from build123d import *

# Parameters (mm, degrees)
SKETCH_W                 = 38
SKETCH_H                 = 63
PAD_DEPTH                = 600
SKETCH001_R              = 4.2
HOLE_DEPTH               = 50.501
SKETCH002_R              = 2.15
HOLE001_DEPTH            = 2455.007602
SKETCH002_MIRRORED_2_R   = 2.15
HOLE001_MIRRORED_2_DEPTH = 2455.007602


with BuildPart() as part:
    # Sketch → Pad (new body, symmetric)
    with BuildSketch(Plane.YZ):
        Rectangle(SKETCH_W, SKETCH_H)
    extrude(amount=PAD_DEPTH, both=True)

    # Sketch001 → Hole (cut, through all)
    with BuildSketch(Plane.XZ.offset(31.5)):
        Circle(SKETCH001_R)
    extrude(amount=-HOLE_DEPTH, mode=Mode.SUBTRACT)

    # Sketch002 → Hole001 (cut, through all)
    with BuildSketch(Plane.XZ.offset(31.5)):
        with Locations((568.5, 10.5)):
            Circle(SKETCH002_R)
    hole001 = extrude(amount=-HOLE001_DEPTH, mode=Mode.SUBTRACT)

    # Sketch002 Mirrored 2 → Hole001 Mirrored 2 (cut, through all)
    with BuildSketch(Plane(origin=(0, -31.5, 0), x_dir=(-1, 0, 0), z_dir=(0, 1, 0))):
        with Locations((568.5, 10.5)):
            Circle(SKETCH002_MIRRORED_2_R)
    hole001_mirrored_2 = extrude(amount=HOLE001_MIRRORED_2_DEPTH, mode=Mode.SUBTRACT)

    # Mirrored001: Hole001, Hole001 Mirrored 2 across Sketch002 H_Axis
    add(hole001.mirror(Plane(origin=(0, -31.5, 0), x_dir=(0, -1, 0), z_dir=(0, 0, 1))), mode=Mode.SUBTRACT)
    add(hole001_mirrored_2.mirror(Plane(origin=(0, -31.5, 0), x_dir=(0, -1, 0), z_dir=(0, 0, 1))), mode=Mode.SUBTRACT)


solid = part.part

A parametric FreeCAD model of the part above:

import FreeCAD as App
import Part
import Sketcher

V = App.Vector
Q = App.Units.Quantity


def add_polygon(sketch, points):
    """Adds a closed chain of lines whose ends are joined by coincident constraints."""
    first, n = sketch.GeometryCount, len(points)
    for a, b in zip(points, points[1:] + points[:1]):
        sketch.addGeometry(Part.LineSegment(App.Vector(*a, 0), App.Vector(*b, 0)), False)
    for i in range(n):
        sketch.addConstraint(Sketcher.Constraint("Coincident", first + i, 2, first + (i + 1) % n, 1))

doc = App.newDocument("Part")
body = doc.addObject("PartDesign::Body", "Body")

# Sketch on YZ plane
sketch1 = body.newObject("Sketcher::SketchObject", "Sketch")
sketch1.AttachmentSupport = (doc.getObject("YZ_Plane"), [""])
sketch1.MapMode = "FlatFace"
add_polygon(sketch1, [(-19, 32), (-19, -32), (19, -32), (19, 32)])  # lines 0-3
sketch1.addConstraint(Sketcher.Constraint("Vertical", 0))
sketch1.addConstraint(Sketcher.Constraint("Horizontal", 1))
sketch1.addConstraint(Sketcher.Constraint("Vertical", 2))
sketch1.addConstraint(Sketcher.Constraint("Horizontal", 3))
sketch1.addConstraint(Sketcher.Constraint("Symmetric", 0, 2, 2, 2, -1, 1))
sketch1.addConstraint(Sketcher.Constraint("DistanceX", 1, 1, 1, 2, Q("38 mm")))
sketch1.addConstraint(Sketcher.Constraint("DistanceY", 0, 2, 0, 1, Q("63 mm")))
pad1 = body.newObject("PartDesign::Pad", "Pad")
pad1.Profile = sketch1
pad1.Length = 1200
pad1.Midplane = True

# Sketch on XZ plane
sketch2 = body.newObject("Sketcher::SketchObject", "Sketch001")
sketch2.AttachmentSupport = (doc.getObject("XZ_Plane"), [""])
sketch2.MapMode = "FlatFace"
sketch2.AttachmentOffset = App.Placement(V(0, 0, 31.5), App.Rotation())
sketch2.addGeometry(Part.Circle(V(0, 0, 0), V(0, 0, 1), 4.2), False)
sketch2.addConstraint(Sketcher.Constraint("Coincident", 0, 3, -1, 1))
sketch2.addConstraint(Sketcher.Constraint("Diameter", 0, Q("8.4 mm")))
pocket1 = body.newObject("PartDesign::Pocket", "Pocket")
pocket1.Profile = sketch2
pocket1.Type = "ThroughAll"

# Sketch on XZ plane
sketch3 = body.newObject("Sketcher::SketchObject", "Sketch002")
sketch3.AttachmentSupport = (doc.getObject("XZ_Plane"), [""])
sketch3.MapMode = "FlatFace"
sketch3.AttachmentOffset = App.Placement(V(0, 0, 31.5), App.Rotation())
sketch3.addGeometry(Part.Circle(V(568.5, 10.5, 0), V(0, 0, 1), 2.1), False)
sketch3.addConstraint(Sketcher.Constraint("Diameter", 0, Q("4.3 mm")))
sketch3.addConstraint(Sketcher.Constraint("DistanceX", -1, 1, 0, 3, Q("568.5 mm")))
sketch3.addConstraint(Sketcher.Constraint("DistanceY", -1, 1, 0, 3, Q("10.5 mm")))
pocket2 = body.newObject("PartDesign::Pocket", "Pocket001")
pocket2.Profile = sketch3
pocket2.Type = "ThroughAll"

# Sketch on XZ plane
sketch4 = body.newObject("Sketcher::SketchObject", "Sketch003")
sketch4.AttachmentSupport = (doc.getObject("XZ_Plane"), [""])
sketch4.MapMode = "FlatFace"
sketch4.AttachmentOffset = App.Placement(V(0, 0, 31.5), App.Rotation())
sketch4.addGeometry(Part.Circle(V(-568.5, 10.5, 0), V(0, 0, 1), 2.1), False)
sketch4.addConstraint(Sketcher.Constraint("Diameter", 0, Q("4.3 mm")))
sketch4.addConstraint(Sketcher.Constraint("DistanceX", 0, 3, -1, 1, Q("568.5 mm")))
sketch4.addConstraint(Sketcher.Constraint("DistanceY", -1, 1, 0, 3, Q("10.5 mm")))
pocket3 = body.newObject("PartDesign::Pocket", "Pocket002")
pocket3.Profile = sketch4
pocket3.Type = "ThroughAll"
doc.recompute()

mirrored = body.newObject("PartDesign::Mirrored", "Mirrored")
mirrored.Originals = [pocket2, pocket3]
mirrored.MirrorPlane = (doc.getObject("XY_Plane"), [""])
body.Tip = mirrored

doc.recompute()
